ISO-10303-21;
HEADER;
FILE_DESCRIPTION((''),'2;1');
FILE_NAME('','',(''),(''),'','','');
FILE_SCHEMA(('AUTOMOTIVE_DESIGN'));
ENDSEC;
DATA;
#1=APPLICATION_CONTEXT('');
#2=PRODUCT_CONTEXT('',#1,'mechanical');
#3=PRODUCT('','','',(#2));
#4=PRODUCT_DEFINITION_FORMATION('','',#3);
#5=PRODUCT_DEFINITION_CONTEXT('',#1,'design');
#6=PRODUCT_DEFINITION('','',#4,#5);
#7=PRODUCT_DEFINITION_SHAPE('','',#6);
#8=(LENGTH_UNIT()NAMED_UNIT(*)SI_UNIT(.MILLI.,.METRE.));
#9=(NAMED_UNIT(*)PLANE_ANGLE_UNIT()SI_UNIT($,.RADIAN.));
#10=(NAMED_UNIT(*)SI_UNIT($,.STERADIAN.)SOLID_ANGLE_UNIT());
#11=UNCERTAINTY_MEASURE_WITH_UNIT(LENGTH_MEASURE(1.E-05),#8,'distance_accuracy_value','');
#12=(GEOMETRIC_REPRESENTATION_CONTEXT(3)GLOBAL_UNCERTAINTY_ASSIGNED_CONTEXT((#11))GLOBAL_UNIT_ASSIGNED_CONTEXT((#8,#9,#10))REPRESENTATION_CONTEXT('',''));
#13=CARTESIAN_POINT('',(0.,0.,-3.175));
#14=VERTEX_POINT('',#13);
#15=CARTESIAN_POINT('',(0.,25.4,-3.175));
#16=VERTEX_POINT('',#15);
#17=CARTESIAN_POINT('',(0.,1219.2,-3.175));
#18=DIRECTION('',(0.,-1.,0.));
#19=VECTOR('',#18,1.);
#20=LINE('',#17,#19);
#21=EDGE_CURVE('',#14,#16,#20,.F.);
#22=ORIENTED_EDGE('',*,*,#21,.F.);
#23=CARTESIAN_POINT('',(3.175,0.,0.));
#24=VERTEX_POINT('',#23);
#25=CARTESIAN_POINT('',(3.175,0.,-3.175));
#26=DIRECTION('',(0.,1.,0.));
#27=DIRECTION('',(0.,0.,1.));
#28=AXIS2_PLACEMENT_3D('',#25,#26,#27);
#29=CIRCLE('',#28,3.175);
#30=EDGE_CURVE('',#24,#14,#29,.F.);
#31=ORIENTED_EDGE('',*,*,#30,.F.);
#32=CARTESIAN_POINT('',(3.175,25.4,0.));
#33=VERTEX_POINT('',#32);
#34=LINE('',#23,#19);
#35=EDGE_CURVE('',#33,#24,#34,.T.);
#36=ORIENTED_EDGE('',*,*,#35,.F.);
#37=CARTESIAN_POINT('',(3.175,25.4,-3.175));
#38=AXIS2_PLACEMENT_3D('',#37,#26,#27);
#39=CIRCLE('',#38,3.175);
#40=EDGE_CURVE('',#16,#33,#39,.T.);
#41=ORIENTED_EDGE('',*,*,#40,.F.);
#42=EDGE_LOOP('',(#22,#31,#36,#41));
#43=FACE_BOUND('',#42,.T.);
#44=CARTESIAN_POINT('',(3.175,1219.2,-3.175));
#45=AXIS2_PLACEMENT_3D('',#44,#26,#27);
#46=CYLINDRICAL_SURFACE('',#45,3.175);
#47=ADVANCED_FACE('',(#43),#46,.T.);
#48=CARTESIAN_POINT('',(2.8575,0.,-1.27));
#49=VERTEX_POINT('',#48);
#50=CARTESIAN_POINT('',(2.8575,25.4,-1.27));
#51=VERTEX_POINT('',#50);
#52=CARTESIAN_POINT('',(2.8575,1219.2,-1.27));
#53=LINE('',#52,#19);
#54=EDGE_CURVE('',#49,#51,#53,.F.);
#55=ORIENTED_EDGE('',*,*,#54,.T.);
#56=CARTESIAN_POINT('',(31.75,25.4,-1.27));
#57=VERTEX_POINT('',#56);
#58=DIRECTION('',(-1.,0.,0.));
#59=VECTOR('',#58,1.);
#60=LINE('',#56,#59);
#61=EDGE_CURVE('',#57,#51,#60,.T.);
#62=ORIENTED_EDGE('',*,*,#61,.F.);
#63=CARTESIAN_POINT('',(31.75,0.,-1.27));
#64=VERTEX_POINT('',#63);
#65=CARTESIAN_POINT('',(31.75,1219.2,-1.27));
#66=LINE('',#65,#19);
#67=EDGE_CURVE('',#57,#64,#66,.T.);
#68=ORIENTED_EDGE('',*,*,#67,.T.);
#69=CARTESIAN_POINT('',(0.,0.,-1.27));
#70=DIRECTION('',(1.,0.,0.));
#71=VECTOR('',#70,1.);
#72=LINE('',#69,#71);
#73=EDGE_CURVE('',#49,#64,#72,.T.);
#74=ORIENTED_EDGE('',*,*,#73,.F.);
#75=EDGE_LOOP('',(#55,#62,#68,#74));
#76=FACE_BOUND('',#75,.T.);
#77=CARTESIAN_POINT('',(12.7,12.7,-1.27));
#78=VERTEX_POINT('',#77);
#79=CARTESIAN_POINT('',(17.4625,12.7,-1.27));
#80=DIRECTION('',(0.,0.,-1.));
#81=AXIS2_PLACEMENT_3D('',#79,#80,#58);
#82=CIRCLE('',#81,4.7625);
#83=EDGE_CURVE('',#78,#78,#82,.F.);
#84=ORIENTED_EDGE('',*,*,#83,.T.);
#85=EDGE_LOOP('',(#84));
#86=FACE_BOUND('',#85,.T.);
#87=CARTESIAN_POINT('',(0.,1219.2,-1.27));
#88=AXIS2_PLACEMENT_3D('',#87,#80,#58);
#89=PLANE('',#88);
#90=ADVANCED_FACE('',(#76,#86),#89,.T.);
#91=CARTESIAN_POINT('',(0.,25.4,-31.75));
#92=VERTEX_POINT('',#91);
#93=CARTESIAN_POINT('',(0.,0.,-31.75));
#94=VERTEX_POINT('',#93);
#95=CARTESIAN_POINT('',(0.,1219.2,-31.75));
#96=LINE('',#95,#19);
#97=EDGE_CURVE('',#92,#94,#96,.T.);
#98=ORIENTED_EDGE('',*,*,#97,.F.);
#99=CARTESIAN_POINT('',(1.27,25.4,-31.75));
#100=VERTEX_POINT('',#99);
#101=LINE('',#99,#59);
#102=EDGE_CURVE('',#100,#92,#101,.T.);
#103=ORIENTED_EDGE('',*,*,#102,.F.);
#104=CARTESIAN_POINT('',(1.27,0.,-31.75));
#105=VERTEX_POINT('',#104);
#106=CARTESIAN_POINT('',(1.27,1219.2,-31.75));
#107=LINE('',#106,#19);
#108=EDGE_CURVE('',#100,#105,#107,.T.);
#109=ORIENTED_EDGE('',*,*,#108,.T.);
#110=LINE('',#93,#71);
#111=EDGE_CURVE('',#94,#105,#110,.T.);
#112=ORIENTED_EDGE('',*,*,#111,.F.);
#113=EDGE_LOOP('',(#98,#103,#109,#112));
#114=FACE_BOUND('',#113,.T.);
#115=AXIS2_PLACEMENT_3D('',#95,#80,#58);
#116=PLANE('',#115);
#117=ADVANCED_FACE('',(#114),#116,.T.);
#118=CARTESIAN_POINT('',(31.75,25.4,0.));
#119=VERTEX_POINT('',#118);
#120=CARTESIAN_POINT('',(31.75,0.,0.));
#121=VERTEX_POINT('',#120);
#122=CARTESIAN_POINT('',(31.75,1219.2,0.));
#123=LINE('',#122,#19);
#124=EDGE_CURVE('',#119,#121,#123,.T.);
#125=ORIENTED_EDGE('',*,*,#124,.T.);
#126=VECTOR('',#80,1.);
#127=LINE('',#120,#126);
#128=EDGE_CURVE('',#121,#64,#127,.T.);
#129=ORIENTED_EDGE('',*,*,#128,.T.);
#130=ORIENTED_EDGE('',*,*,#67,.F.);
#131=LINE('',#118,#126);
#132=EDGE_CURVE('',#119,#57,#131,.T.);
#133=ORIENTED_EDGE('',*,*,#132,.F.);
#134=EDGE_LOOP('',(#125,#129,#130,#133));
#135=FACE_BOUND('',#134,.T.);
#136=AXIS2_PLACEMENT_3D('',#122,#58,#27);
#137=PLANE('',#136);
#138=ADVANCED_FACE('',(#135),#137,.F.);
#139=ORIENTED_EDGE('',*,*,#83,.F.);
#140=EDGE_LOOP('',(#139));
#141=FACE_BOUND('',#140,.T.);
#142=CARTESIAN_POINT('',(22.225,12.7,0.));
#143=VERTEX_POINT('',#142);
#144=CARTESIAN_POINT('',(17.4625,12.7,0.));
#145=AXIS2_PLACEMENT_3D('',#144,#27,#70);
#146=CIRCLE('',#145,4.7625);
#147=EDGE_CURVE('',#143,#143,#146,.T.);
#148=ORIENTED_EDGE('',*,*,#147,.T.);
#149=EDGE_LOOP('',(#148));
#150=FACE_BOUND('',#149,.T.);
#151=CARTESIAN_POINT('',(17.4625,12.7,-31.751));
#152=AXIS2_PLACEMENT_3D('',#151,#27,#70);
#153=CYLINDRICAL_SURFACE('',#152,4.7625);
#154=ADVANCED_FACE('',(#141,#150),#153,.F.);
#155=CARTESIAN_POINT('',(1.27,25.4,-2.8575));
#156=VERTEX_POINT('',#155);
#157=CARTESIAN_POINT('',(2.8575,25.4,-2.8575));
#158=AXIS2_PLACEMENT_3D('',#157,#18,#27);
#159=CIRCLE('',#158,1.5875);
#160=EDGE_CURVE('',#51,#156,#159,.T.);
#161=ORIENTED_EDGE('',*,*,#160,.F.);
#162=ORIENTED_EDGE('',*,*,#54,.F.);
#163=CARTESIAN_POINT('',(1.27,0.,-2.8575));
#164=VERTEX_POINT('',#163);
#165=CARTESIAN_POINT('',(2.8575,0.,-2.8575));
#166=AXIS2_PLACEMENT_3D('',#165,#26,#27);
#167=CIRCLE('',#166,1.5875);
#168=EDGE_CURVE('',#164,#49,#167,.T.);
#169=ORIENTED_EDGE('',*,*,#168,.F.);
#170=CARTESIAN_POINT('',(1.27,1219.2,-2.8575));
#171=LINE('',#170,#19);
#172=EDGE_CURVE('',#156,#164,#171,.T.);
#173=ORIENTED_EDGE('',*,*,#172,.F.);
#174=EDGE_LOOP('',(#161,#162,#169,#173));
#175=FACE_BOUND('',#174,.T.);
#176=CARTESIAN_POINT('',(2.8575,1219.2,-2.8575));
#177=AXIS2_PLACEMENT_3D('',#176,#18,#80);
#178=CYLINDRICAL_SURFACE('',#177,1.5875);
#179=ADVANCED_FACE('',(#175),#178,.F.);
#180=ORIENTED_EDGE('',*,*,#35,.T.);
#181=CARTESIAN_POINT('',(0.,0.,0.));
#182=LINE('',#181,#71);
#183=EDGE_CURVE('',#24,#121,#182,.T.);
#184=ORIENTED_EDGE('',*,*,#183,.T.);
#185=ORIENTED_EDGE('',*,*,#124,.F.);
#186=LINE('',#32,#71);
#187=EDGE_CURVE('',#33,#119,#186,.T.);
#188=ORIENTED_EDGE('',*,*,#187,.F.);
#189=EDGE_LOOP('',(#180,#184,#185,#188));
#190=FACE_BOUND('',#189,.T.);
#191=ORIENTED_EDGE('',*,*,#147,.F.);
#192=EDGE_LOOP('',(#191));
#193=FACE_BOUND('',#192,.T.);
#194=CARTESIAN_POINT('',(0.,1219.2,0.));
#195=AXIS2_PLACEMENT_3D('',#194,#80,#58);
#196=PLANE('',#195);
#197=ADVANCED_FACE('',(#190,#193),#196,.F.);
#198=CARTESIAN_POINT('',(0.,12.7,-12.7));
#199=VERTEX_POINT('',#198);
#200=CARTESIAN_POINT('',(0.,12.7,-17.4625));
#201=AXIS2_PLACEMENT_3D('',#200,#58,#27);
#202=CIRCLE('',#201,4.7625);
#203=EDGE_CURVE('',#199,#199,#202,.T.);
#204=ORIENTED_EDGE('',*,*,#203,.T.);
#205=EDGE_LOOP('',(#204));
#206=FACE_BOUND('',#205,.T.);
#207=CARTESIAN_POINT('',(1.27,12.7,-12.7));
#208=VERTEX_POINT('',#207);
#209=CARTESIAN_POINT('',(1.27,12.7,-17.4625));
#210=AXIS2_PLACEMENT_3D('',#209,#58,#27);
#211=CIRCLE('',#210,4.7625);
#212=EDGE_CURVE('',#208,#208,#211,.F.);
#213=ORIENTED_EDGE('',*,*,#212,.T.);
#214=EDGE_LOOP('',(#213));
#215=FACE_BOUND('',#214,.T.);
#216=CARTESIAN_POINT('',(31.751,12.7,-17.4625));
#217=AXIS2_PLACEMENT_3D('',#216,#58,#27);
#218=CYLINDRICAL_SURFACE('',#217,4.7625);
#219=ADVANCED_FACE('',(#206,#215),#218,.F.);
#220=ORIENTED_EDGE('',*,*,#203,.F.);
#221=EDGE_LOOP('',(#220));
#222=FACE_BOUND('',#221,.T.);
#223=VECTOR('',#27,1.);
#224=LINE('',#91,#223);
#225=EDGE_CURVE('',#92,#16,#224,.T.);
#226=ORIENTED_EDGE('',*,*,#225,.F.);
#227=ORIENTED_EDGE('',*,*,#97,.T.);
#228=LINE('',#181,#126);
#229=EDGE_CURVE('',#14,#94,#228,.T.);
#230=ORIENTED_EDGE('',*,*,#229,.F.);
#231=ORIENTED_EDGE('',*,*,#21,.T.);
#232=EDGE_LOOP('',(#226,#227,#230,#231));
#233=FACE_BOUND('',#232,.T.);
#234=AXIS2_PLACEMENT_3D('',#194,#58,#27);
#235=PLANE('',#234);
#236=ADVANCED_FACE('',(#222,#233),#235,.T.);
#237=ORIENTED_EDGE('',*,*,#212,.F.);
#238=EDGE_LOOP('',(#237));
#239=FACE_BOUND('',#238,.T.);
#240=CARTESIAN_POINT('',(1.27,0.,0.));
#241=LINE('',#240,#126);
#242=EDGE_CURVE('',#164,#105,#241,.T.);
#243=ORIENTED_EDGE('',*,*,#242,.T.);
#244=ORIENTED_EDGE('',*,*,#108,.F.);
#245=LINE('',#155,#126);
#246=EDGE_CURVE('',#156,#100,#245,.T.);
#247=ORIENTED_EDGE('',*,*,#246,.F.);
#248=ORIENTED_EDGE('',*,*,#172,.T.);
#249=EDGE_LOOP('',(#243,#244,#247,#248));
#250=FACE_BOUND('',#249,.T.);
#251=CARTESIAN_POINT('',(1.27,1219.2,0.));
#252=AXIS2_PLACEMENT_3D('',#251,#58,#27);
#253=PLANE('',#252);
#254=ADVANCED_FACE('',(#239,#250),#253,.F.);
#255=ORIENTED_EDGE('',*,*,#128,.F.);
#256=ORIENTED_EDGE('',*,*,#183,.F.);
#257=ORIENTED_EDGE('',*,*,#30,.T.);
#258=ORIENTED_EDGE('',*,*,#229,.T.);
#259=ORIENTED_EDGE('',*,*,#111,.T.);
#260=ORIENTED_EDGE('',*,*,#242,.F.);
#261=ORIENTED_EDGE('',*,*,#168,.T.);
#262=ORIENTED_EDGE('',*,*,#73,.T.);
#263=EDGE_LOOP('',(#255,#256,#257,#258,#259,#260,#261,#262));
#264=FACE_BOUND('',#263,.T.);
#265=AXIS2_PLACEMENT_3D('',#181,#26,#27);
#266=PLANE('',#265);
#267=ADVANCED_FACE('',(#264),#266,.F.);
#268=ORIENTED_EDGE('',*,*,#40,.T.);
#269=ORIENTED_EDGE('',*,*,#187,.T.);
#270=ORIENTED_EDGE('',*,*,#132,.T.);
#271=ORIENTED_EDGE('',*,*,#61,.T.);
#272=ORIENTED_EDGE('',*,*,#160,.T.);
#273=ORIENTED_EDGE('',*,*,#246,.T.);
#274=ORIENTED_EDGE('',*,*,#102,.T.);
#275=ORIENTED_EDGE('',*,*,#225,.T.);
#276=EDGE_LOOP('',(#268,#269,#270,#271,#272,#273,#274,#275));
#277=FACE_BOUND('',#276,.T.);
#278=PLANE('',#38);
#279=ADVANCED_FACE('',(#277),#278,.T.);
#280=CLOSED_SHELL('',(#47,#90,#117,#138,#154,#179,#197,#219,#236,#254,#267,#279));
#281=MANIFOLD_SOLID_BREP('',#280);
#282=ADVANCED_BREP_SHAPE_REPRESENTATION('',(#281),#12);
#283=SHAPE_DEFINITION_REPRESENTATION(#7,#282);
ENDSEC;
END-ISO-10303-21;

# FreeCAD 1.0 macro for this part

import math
import FreeCAD as App
import Part
import Sketcher
Q = App.Units.Quantity


def edges_at(feature, points):
    """Names of the edges that pass closest to the given points."""
    edges = feature.Shape.Edges
    near = lambda p: min(range(len(edges)), key=lambda i: edges[i].distToShape(Part.Vertex(*p))[0])
    return sorted({f"Edge{near(p) + 1}" for p in points})

doc = App.newDocument("Part")
body = doc.addObject("PartDesign::Body", "Body")

sketch1 = doc.addObject("Sketcher::SketchObject", "Sketch")
body.addObject(sketch1)
sketch1.AttachmentSupport = (doc.XZ_Plane, [""])
sketch1.MapMode = "FlatFace"
sketch1.addGeometry(Part.LineSegment(App.Vector(1.3, -1.3, 0), App.Vector(1.3, -31.8, 0)), False)
sketch1.addGeometry(Part.LineSegment(App.Vector(1.3, -31.8, 0), App.Vector(0, -31.8, 0)), False)
sketch1.addGeometry(Part.LineSegment(App.Vector(0, -31.8, 0), App.Vector(0, 0, 0)), False)
sketch1.addGeometry(Part.LineSegment(App.Vector(0, 0, 0), App.Vector(31.8, 0, 0)), False)
sketch1.addGeometry(Part.LineSegment(App.Vector(31.8, 0, 0), App.Vector(31.8, -1.3, 0)), False)
sketch1.addGeometry(Part.LineSegment(App.Vector(31.8, -1.3, 0), App.Vector(1.3, -1.3, 0)), False)
sketch1.addConstraint(Sketcher.Constraint("Coincident", 0, 2, 1, 1))
sketch1.addConstraint(Sketcher.Constraint("Coincident", 1, 2, 2, 1))
sketch1.addConstraint(Sketcher.Constraint("Coincident", 2, 2, 3, 1))
sketch1.addConstraint(Sketcher.Constraint("Coincident", 3, 2, 4, 1))
sketch1.addConstraint(Sketcher.Constraint("Coincident", 4, 2, 5, 1))
sketch1.addConstraint(Sketcher.Constraint("Coincident", 5, 2, 0, 1))
sketch1.addConstraint(Sketcher.Constraint("Vertical", 0))
sketch1.addConstraint(Sketcher.Constraint("Horizontal", 1))
sketch1.addConstraint(Sketcher.Constraint("Vertical", 2))
sketch1.addConstraint(Sketcher.Constraint("Horizontal", 3))
sketch1.addConstraint(Sketcher.Constraint("Vertical", 4))
sketch1.addConstraint(Sketcher.Constraint("Horizontal", 5))
sketch1.addConstraint(Sketcher.Constraint("Coincident", 2, 2, -1, 1))
sketch1.addConstraint(Sketcher.Constraint("Equal", 5, 0))
sketch1.addConstraint(Sketcher.Constraint("Equal", 3, 2))
sketch1.addConstraint(Sketcher.Constraint("DistanceX", 5, 2, 5, 1, Q("1.2 in")))
sketch1.addConstraint(Sketcher.Constraint("DistanceX", 1, 2, 1, 1, Q("0.05 in")))
pad1 = doc.addObject("PartDesign::Pad", "Pad")
body.addObject(pad1)
pad1.Profile = sketch1
pad1.Length = Q("48 in")
pad1.Reversed = True

sketch2 = doc.addObject("Sketcher::SketchObject", "Sketch001")
body.addObject(sketch2)
sketch2.AttachmentSupport = (doc.YZ_Plane, [""])
sketch2.MapMode = "FlatFace"
sketch2.addGeometry(Part.Circle(App.Vector(12.7, -17.5, 0), App.Vector(0, 0, 1), 4.8), False)
sketch2.addGeometry(Part.Circle(App.Vector(38.1, -17.5, 0), App.Vector(0, 0, 1), 4.8), False)
sketch2.addGeometry(Part.Circle(App.Vector(63.5, -17.5, 0), App.Vector(0, 0, 1), 4.8), False)
sketch2.addGeometry(Part.Circle(App.Vector(88.9, -17.5, 0), App.Vector(0, 0, 1), 4.8), False)
sketch2.addGeometry(Part.Circle(App.Vector(114.3, -17.5, 0), App.Vector(0, 0, 1), 4.8), False)
sketch2.addGeometry(Part.Circle(App.Vector(139.7, -17.5, 0), App.Vector(0, 0, 1), 4.8), False)
sketch2.addGeometry(Part.Circle(App.Vector(165.1, -17.5, 0), App.Vector(0, 0, 1), 4.8), False)
sketch2.addGeometry(Part.Circle(App.Vector(190.5, -17.5, 0), App.Vector(0, 0, 1), 4.8), False)
sketch2.addGeometry(Part.Circle(App.Vector(215.9, -17.5, 0), App.Vector(0, 0, 1), 4.8), False)
sketch2.addGeometry(Part.Circle(App.Vector(241.3, -17.5, 0), App.Vector(0, 0, 1), 4.8), False)
sketch2.addGeometry(Part.Circle(App.Vector(266.7, -17.5, 0), App.Vector(0, 0, 1), 4.8), False)
sketch2.addGeometry(Part.Circle(App.Vector(292.1, -17.5, 0), App.Vector(0, 0, 1), 4.8), False)
sketch2.addGeometry(Part.Circle(App.Vector(317.5, -17.5, 0), App.Vector(0, 0, 1), 4.8), False)
sketch2.addGeometry(Part.Circle(App.Vector(342.9, -17.5, 0), App.Vector(0, 0, 1), 4.8), False)
sketch2.addGeometry(Part.Circle(App.Vector(368.3, -17.5, 0), App.Vector(0, 0, 1), 4.8), False)
sketch2.addGeometry(Part.Circle(App.Vector(393.7, -17.5, 0), App.Vector(0, 0, 1), 4.8), False)
sketch2.addGeometry(Part.Circle(App.Vector(419.1, -17.5, 0), App.Vector(0, 0, 1), 4.8), False)
sketch2.addGeometry(Part.Circle(App.Vector(444.5, -17.5, 0), App.Vector(0, 0, 1), 4.8), False)
sketch2.addGeometry(Part.Circle(App.Vector(469.9, -17.5, 0), App.Vector(0, 0, 1), 4.8), False)
sketch2.addGeometry(Part.Circle(App.Vector(495.3, -17.5, 0), App.Vector(0, 0, 1), 4.8), False)
sketch2.addGeometry(Part.Circle(App.Vector(520.7, -17.5, 0), App.Vector(0, 0, 1), 4.8), False)
sketch2.addGeometry(Part.Circle(App.Vector(546.1, -17.5, 0), App.Vector(0, 0, 1), 4.8), False)
sketch2.addGeometry(Part.Circle(App.Vector(571.5, -17.5, 0), App.Vector(0, 0, 1), 4.8), False)
sketch2.addGeometry(Part.Circle(App.Vector(596.9, -17.5, 0), App.Vector(0, 0, 1), 4.8), False)
sketch2.addGeometry(Part.Circle(App.Vector(622.3, -17.5, 0), App.Vector(0, 0, 1), 4.8), False)
sketch2.addGeometry(Part.Circle(App.Vector(647.7, -17.5, 0), App.Vector(0, 0, 1), 4.8), False)
sketch2.addGeometry(Part.Circle(App.Vector(673.1, -17.5, 0), App.Vector(0, 0, 1), 4.8), False)
sketch2.addGeometry(Part.Circle(App.Vector(698.5, -17.5, 0), App.Vector(0, 0, 1), 4.8), False)
sketch2.addGeometry(Part.Circle(App.Vector(723.9, -17.5, 0), App.Vector(0, 0, 1), 4.8), False)
sketch2.addGeometry(Part.Circle(App.Vector(749.3, -17.5, 0), App.Vector(0, 0, 1), 4.8), False)
sketch2.addGeometry(Part.Circle(App.Vector(774.7, -17.5, 0), App.Vector(0, 0, 1), 4.8), False)
sketch2.addGeometry(Part.Circle(App.Vector(800.1, -17.5, 0), App.Vector(0, 0, 1), 4.8), False)
sketch2.addGeometry(Part.Circle(App.Vector(825.5, -17.5, 0), App.Vector(0, 0, 1), 4.8), False)
sketch2.addGeometry(Part.Circle(App.Vector(850.9, -17.5, 0), App.Vector(0, 0, 1), 4.8), False)
sketch2.addGeometry(Part.Circle(App.Vector(876.3, -17.5, 0), App.Vector(0, 0, 1), 4.8), False)
sketch2.addGeometry(Part.Circle(App.Vector(901.7, -17.5, 0), App.Vector(0, 0, 1), 4.8), False)
sketch2.addGeometry(Part.Circle(App.Vector(927.1, -17.5, 0), App.Vector(0, 0, 1), 4.8), False)
sketch2.addGeometry(Part.Circle(App.Vector(952.5, -17.5, 0), App.Vector(0, 0, 1), 4.8), False)
sketch2.addGeometry(Part.Circle(App.Vector(977.9, -17.5, 0), App.Vector(0, 0, 1), 4.8), False)
sketch2.addGeometry(Part.Circle(App.Vector(1003.3, -17.5, 0), App.Vector(0, 0, 1), 4.8), False)
sketch2.addGeometry(Part.Circle(App.Vector(1028.7, -17.5, 0), App.Vector(0, 0, 1), 4.8), False)
sketch2.addGeometry(Part.Circle(App.Vector(1054.1, -17.5, 0), App.Vector(0, 0, 1), 4.8), False)
sketch2.addGeometry(Part.Circle(App.Vector(1079.5, -17.5, 0), App.Vector(0, 0, 1), 4.8), False)
sketch2.addGeometry(Part.Circle(App.Vector(1104.9, -17.5, 0), App.Vector(0, 0, 1), 4.8), False)
sketch2.addGeometry(Part.Circle(App.Vector(1130.3, -17.5, 0), App.Vector(0, 0, 1), 4.8), False)
sketch2.addGeometry(Part.Circle(App.Vector(1155.7, -17.5, 0), App.Vector(0, 0, 1), 4.8), False)
sketch2.addGeometry(Part.Circle(App.Vector(1181.1, -17.5, 0), App.Vector(0, 0, 1), 4.8), False)
sketch2.addGeometry(Part.Circle(App.Vector(1206.5, -17.5, 0), App.Vector(0, 0, 1), 4.8), False)
sketch2.addConstraint(Sketcher.Constraint("Equal", 0, 1))
sketch2.addConstraint(Sketcher.Constraint("Equal", 1, 2))
sketch2.addConstraint(Sketcher.Constraint("Equal", 2, 3))
sketch2.addConstraint(Sketcher.Constraint("Equal", 3, 4))
sketch2.addConstraint(Sketcher.Constraint("Equal", 4, 5))
sketch2.addConstraint(Sketcher.Constraint("Equal", 5, 6))
sketch2.addConstraint(Sketcher.Constraint("Equal", 6, 7))
sketch2.addConstraint(Sketcher.Constraint("Equal", 7, 8))
sketch2.addConstraint(Sketcher.Constraint("Equal", 8, 9))
sketch2.addConstraint(Sketcher.Constraint("Equal", 9, 10))
sketch2.addConstraint(Sketcher.Constraint("Equal", 10, 11))
sketch2.addConstraint(Sketcher.Constraint("Equal", 11, 12))
sketch2.addConstraint(Sketcher.Constraint("Equal", 12, 13))
sketch2.addConstraint(Sketcher.Constraint("Equal", 13, 14))
sketch2.addConstraint(Sketcher.Constraint("Equal", 14, 15))
sketch2.addConstraint(Sketcher.Constraint("Equal", 15, 16))
sketch2.addConstraint(Sketcher.Constraint("Equal", 16, 17))
sketch2.addConstraint(Sketcher.Constraint("Equal", 17, 18))
sketch2.addConstraint(Sketcher.Constraint("Equal", 18, 19))
sketch2.addConstraint(Sketcher.Constraint("Equal", 19, 20))
sketch2.addConstraint(Sketcher.Constraint("Equal", 20, 21))
sketch2.addConstraint(Sketcher.Constraint("Equal", 21, 22))
sketch2.addConstraint(Sketcher.Constraint("Equal", 22, 23))
sketch2.addConstraint(Sketcher.Constraint("Equal", 23, 24))
sketch2.addConstraint(Sketcher.Constraint("Equal", 24, 25))
sketch2.addConstraint(Sketcher.Constraint("Equal", 25, 26))
sketch2.addConstraint(Sketcher.Constraint("Equal", 26, 27))
sketch2.addConstraint(Sketcher.Constraint("Equal", 27, 28))
sketch2.addConstraint(Sketcher.Constraint("Equal", 28, 29))
sketch2.addConstraint(Sketcher.Constraint("Equal", 29, 30))
sketch2.addConstraint(Sketcher.Constraint("Equal", 30, 31))
sketch2.addConstraint(Sketcher.Constraint("Equal", 31, 32))
sketch2.addConstraint(Sketcher.Constraint("Equal", 32, 33))
sketch2.addConstraint(Sketcher.Constraint("Equal", 33, 34))
sketch2.addConstraint(Sketcher.Constraint("Equal", 34, 35))
sketch2.addConstraint(Sketcher.Constraint("Equal", 35, 36))
sketch2.addConstraint(Sketcher.Constraint("Equal", 36, 37))
sketch2.addConstraint(Sketcher.Constraint("Equal", 37, 38))
sketch2.addConstraint(Sketcher.Constraint("Equal", 38, 39))
sketch2.addConstraint(Sketcher.Constraint("Equal", 39, 40))
sketch2.addConstraint(Sketcher.Constraint("Equal", 40, 41))
sketch2.addConstraint(Sketcher.Constraint("Equal", 41, 42))
sketch2.addConstraint(Sketcher.Constraint("Equal", 42, 43))
sketch2.addConstraint(Sketcher.Constraint("Equal", 43, 44))
sketch2.addConstraint(Sketcher.Constraint("Equal", 44, 45))
sketch2.addConstraint(Sketcher.Constraint("Equal", 45, 46))
sketch2.addConstraint(Sketcher.Constraint("Equal", 46, 47))
sketch2.addConstraint(Sketcher.Constraint("Horizontal", 0, 3, 1, 3))
sketch2.addConstraint(Sketcher.Constraint("Horizontal", 1, 3, 2, 3))
sketch2.addConstraint(Sketcher.Constraint("Horizontal", 2, 3, 3, 3))
sketch2.addConstraint(Sketcher.Constraint("Horizontal", 3, 3, 4, 3))
sketch2.addConstraint(Sketcher.Constraint("Horizontal", 4, 3, 5, 3))
sketch2.addConstraint(Sketcher.Constraint("Horizontal", 5, 3, 6, 3))
sketch2.addConstraint(Sketcher.Constraint("Horizontal", 6, 3, 7, 3))
sketch2.addConstraint(Sketcher.Constraint("Horizontal", 7, 3, 8, 3))
sketch2.addConstraint(Sketcher.Constraint("Horizontal", 8, 3, 9, 3))
sketch2.addConstraint(Sketcher.Constraint("Horizontal", 9, 3, 10, 3))
sketch2.addConstraint(Sketcher.Constraint("Horizontal", 10, 3, 11, 3))
sketch2.addConstraint(Sketcher.Constraint("Horizontal", 11, 3, 12, 3))
sketch2.addConstraint(Sketcher.Constraint("Horizontal", 12, 3, 13, 3))
sketch2.addConstraint(Sketcher.Constraint("Horizontal", 13, 3, 14, 3))
sketch2.addConstraint(Sketcher.Constraint("Horizontal", 14, 3, 15, 3))
sketch2.addConstraint(Sketcher.Constraint("Horizontal", 15, 3, 16, 3))
sketch2.addConstraint(Sketcher.Constraint("Horizontal", 16, 3, 17, 3))
sketch2.addConstraint(Sketcher.Constraint("Horizontal", 17, 3, 18, 3))
sketch2.addConstraint(Sketcher.Constraint("Horizontal", 18, 3, 19, 3))
sketch2.addConstraint(Sketcher.Constraint("Horizontal", 19, 3, 20, 3))
sketch2.addConstraint(Sketcher.Constraint("Horizontal", 20, 3, 21, 3))
sketch2.addConstraint(Sketcher.Constraint("Horizontal", 21, 3, 22, 3))
sketch2.addConstraint(Sketcher.Constraint("Horizontal", 22, 3, 23, 3))
sketch2.addConstraint(Sketcher.Constraint("Horizontal", 23, 3, 24, 3))
sketch2.addConstraint(Sketcher.Constraint("Horizontal", 24, 3, 25, 3))
sketch2.addConstraint(Sketcher.Constraint("Horizontal", 25, 3, 26, 3))
sketch2.addConstraint(Sketcher.Constraint("Horizontal", 26, 3, 27, 3))
sketch2.addConstraint(Sketcher.Constraint("Horizontal", 27, 3, 28, 3))
sketch2.addConstraint(Sketcher.Constraint("Horizontal", 28, 3, 29, 3))
sketch2.addConstraint(Sketcher.Constraint("Horizontal", 29, 3, 30, 3))
sketch2.addConstraint(Sketcher.Constraint("Horizontal", 30, 3, 31, 3))
sketch2.addConstraint(Sketcher.Constraint("Horizontal", 31, 3, 32, 3))
sketch2.addConstraint(Sketcher.Constraint("Horizontal", 32, 3, 33, 3))
sketch2.addConstraint(Sketcher.Constraint("Horizontal", 33, 3, 34, 3))
sketch2.addConstraint(Sketcher.Constraint("Horizontal", 34, 3, 35, 3))
sketch2.addConstraint(Sketcher.Constraint("Horizontal", 35, 3, 36, 3))
sketch2.addConstraint(Sketcher.Constraint("Horizontal", 36, 3, 37, 3))
sketch2.addConstraint(Sketcher.Constraint("Horizontal", 37, 3, 38, 3))
sketch2.addConstraint(Sketcher.Constraint("Horizontal", 38, 3, 39, 3))
sketch2.addConstraint(Sketcher.Constraint("Horizontal", 39, 3, 40, 3))
sketch2.addConstraint(Sketcher.Constraint("Horizontal", 40, 3, 41, 3))
sketch2.addConstraint(Sketcher.Constraint("Horizontal", 41, 3, 42, 3))
sketch2.addConstraint(Sketcher.Constraint("Horizontal", 42, 3, 43, 3))
sketch2.addConstraint(Sketcher.Constraint("Horizontal", 43, 3, 44, 3))
sketch2.addConstraint(Sketcher.Constraint("Horizontal", 44, 3, 45, 3))
sketch2.addConstraint(Sketcher.Constraint("Horizontal", 45, 3, 46, 3))
sketch2.addConstraint(Sketcher.Constraint("Horizontal", 46, 3, 47, 3))
sketch2.addConstraint(Sketcher.Constraint("Diameter", 0, Q("0.375 in")))
sketch2.addConstraint(Sketcher.Constraint("DistanceX", 0, 3, 1, 3, Q("1 in")))
sketch2.addConstraint(Sketcher.Constraint("DistanceX", 1, 3, 2, 3, Q("1 in")))
sketch2.addConstraint(Sketcher.Constraint("DistanceX", 2, 3, 3, 3, Q("1 in")))
sketch2.addConstraint(Sketcher.Constraint("DistanceX", 3, 3, 4, 3, Q("1 in")))
sketch2.addConstraint(Sketcher.Constraint("DistanceX", 4, 3, 5, 3, Q("1 in")))
sketch2.addConstraint(Sketcher.Constraint("DistanceX", 5, 3, 6, 3, Q("1 in")))
sketch2.addConstraint(Sketcher.Constraint("DistanceX", 6, 3, 7, 3, Q("1 in")))
sketch2.addConstraint(Sketcher.Constraint("DistanceX", 7, 3, 8, 3, Q("1 in")))
sketch2.addConstraint(Sketcher.Constraint("DistanceX", 8, 3, 9, 3, Q("1 in")))
sketch2.addConstraint(Sketcher.Constraint("DistanceX", 9, 3, 10, 3, Q("1 in")))
sketch2.addConstraint(Sketcher.Constraint("DistanceX", 10, 3, 11, 3, Q("1 in")))
sketch2.addConstraint(Sketcher.Constraint("DistanceX", 11, 3, 12, 3, Q("1 in")))
sketch2.addConstraint(Sketcher.Constraint("DistanceX", 12, 3, 13, 3, Q("1 in")))
sketch2.addConstraint(Sketcher.Constraint("DistanceX", 13, 3, 14, 3, Q("1 in")))
sketch2.addConstraint(Sketcher.Constraint("DistanceX", 14, 3, 15, 3, Q("1 in")))
sketch2.addConstraint(Sketcher.Constraint("DistanceX", 15, 3, 16, 3, Q("1 in")))
sketch2.addConstraint(Sketcher.Constraint("DistanceX", 16, 3, 17, 3, Q("1 in")))
sketch2.addConstraint(Sketcher.Constraint("DistanceX", 17, 3, 18, 3, Q("1 in")))
sketch2.addConstraint(Sketcher.Constraint("DistanceX", 18, 3, 19, 3, Q("1 in")))
sketch2.addConstraint(Sketcher.Constraint("DistanceX", 19, 3, 20, 3, Q("1 in")))
sketch2.addConstraint(Sketcher.Constraint("DistanceX", 20, 3, 21, 3, Q("1 in")))
sketch2.addConstraint(Sketcher.Constraint("DistanceX", 21, 3, 22, 3, Q("1 in")))
sketch2.addConstraint(Sketcher.Constraint("DistanceX", 22, 3, 23, 3, Q("1 in")))
sketch2.addConstraint(Sketcher.Constraint("DistanceX", 23, 3, 24, 3, Q("1 in")))
sketch2.addConstraint(Sketcher.Constraint("DistanceX", 24, 3, 25, 3, Q("1 in")))
sketch2.addConstraint(Sketcher.Constraint("DistanceX", 25, 3, 26, 3, Q("1 in")))
sketch2.addConstraint(Sketcher.Constraint("DistanceX", 26, 3, 27, 3, Q("1 in")))
sketch2.addConstraint(Sketcher.Constraint("DistanceX", 27, 3, 28, 3, Q("1 in")))
sketch2.addConstraint(Sketcher.Constraint("DistanceX", 28, 3, 29, 3, Q("1 in")))
sketch2.addConstraint(Sketcher.Constraint("DistanceX", 29, 3, 30, 3, Q("1 in")))
sketch2.addConstraint(Sketcher.Constraint("DistanceX", 30, 3, 31, 3, Q("1 in")))
sketch2.addConstraint(Sketcher.Constraint("DistanceX", 31, 3, 32, 3, Q("1 in")))
sketch2.addConstraint(Sketcher.Constraint("DistanceX", 32, 3, 33, 3, Q("1 in")))
sketch2.addConstraint(Sketcher.Constraint("DistanceX", 33, 3, 34, 3, Q("1 in")))
sketch2.addConstraint(Sketcher.Constraint("DistanceX", 34, 3, 35, 3, Q("1 in")))
sketch2.addConstraint(Sketcher.Constraint("DistanceX", 35, 3, 36, 3, Q("1 in")))
sketch2.addConstraint(Sketcher.Constraint("DistanceX", 36, 3, 37, 3, Q("1 in")))
sketch2.addConstraint(Sketcher.Constraint("DistanceX", 37, 3, 38, 3, Q("1 in")))
sketch2.addConstraint(Sketcher.Constraint("DistanceX", 38, 3, 39, 3, Q("1 in")))
sketch2.addConstraint(Sketcher.Constraint("DistanceX", 39, 3, 40, 3, Q("1 in")))
sketch2.addConstraint(Sketcher.Constraint("DistanceX", 40, 3, 41, 3, Q("1 in")))
sketch2.addConstraint(Sketcher.Constraint("DistanceX", 41, 3, 42, 3, Q("1 in")))
sketch2.addConstraint(Sketcher.Constraint("DistanceX", 42, 3, 43, 3, Q("1 in")))
sketch2.addConstraint(Sketcher.Constraint("DistanceX", 43, 3, 44, 3, Q("1 in")))
sketch2.addConstraint(Sketcher.Constraint("DistanceX", 44, 3, 45, 3, Q("1 in")))
sketch2.addConstraint(Sketcher.Constraint("DistanceX", 45, 3, 46, 3, Q("1 in")))
sketch2.addConstraint(Sketcher.Constraint("DistanceX", 46, 3, 47, 3, Q("1 in")))
sketch2.addConstraint(Sketcher.Constraint("DistanceX", -1, 1, 0, 3, Q("0.5 in")))
sketch2.addConstraint(Sketcher.Constraint("DistanceY", 0, 3, -1, 1, Q("0.6875 in")))
pocket1 = doc.addObject("PartDesign::Pocket", "Pocket")
body.addObject(pocket1)
pocket1.Profile = sketch2
pocket1.Length = Q("0.05 in")
pocket1.Reversed = True

sketch3 = doc.addObject("Sketcher::SketchObject", "Sketch002")
body.addObject(sketch3)
sketch3.AttachmentSupport = (doc.XY_Plane, [""])
sketch3.MapMode = "FlatFace"
sketch3.addGeometry(Part.Circle(App.Vector(17.5, 1206.5, 0), App.Vector(0, 0, 1), 4.8), False)
sketch3.addGeometry(Part.Circle(App.Vector(17.5, 1181.1, 0), App.Vector(0, 0, 1), 4.8), False)
sketch3.addGeometry(Part.Circle(App.Vector(17.5, 1155.7, 0), App.Vector(0, 0, 1), 4.8), False)
sketch3.addGeometry(Part.Circle(App.Vector(17.5, 1130.3, 0), App.Vector(0, 0, 1), 4.8), False)
sketch3.addGeometry(Part.Circle(App.Vector(17.5, 1104.9, 0), App.Vector(0, 0, 1), 4.8), False)
sketch3.addGeometry(Part.Circle(App.Vector(17.5, 1079.5, 0), App.Vector(0, 0, 1), 4.8), False)
sketch3.addGeometry(Part.Circle(App.Vector(17.5, 1054.1, 0), App.Vector(0, 0, 1), 4.8), False)
sketch3.addGeometry(Part.Circle(App.Vector(17.5, 1028.7, 0), App.Vector(0, 0, 1), 4.8), False)
sketch3.addGeometry(Part.Circle(App.Vector(17.5, 1003.3, 0), App.Vector(0, 0, 1), 4.8), False)
sketch3.addGeometry(Part.Circle(App.Vector(17.5, 977.9, 0), App.Vector(0, 0, 1), 4.8), False)
sketch3.addGeometry(Part.Circle(App.Vector(17.5, 952.5, 0), App.Vector(0, 0, 1), 4.8), False)
sketch3.addGeometry(Part.Circle(App.Vector(17.5, 927.1, 0), App.Vector(0, 0, 1), 4.8), False)
sketch3.addGeometry(Part.Circle(App.Vector(17.5, 901.7, 0), App.Vector(0, 0, 1), 4.8), False)
sketch3.addGeometry(Part.Circle(App.Vector(17.5, 876.3, 0), App.Vector(0, 0, 1), 4.8), False)
sketch3.addGeometry(Part.Circle(App.Vector(17.5, 850.9, 0), App.Vector(0, 0, 1), 4.8), False)
sketch3.addGeometry(Part.Circle(App.Vector(17.5, 825.5, 0), App.Vector(0, 0, 1), 4.8), False)
sketch3.addGeometry(Part.Circle(App.Vector(17.5, 800.1, 0), App.Vector(0, 0, 1), 4.8), False)
sketch3.addGeometry(Part.Circle(App.Vector(17.5, 774.7, 0), App.Vector(0, 0, 1), 4.8), False)
sketch3.addGeometry(Part.Circle(App.Vector(17.5, 749.3, 0), App.Vector(0, 0, 1), 4.8), False)
sketch3.addGeometry(Part.Circle(App.Vector(17.5, 723.9, 0), App.Vector(0, 0, 1), 4.8), False)
sketch3.addGeometry(Part.Circle(App.Vector(17.5, 698.5, 0), App.Vector(0, 0, 1), 4.8), False)
sketch3.addGeometry(Part.Circle(App.Vector(17.5, 673.1, 0), App.Vector(0, 0, 1), 4.8), False)
sketch3.addGeometry(Part.Circle(App.Vector(17.5, 647.7, 0), App.Vector(0, 0, 1), 4.8), False)
sketch3.addGeometry(Part.Circle(App.Vector(17.5, 622.3, 0), App.Vector(0, 0, 1), 4.8), False)
sketch3.addGeometry(Part.Circle(App.Vector(17.5, 596.9, 0), App.Vector(0, 0, 1), 4.8), False)
sketch3.addGeometry(Part.Circle(App.Vector(17.5, 571.5, 0), App.Vector(0, 0, 1), 4.8), False)
sketch3.addGeometry(Part.Circle(App.Vector(17.5, 546.1, 0), App.Vector(0, 0, 1), 4.8), False)
sketch3.addGeometry(Part.Circle(App.Vector(17.5, 520.7, 0), App.Vector(0, 0, 1), 4.8), False)
sketch3.addGeometry(Part.Circle(App.Vector(17.5, 495.3, 0), App.Vector(0, 0, 1), 4.8), False)
sketch3.addGeometry(Part.Circle(App.Vector(17.5, 469.9, 0), App.Vector(0, 0, 1), 4.8), False)
sketch3.addGeometry(Part.Circle(App.Vector(17.5, 444.5, 0), App.Vector(0, 0, 1), 4.8), False)
sketch3.addGeometry(Part.Circle(App.Vector(17.5, 419.1, 0), App.Vector(0, 0, 1), 4.8), False)
sketch3.addGeometry(Part.Circle(App.Vector(17.5, 393.7, 0), App.Vector(0, 0, 1), 4.8), False)
sketch3.addGeometry(Part.Circle(App.Vector(17.5, 368.3, 0), App.Vector(0, 0, 1), 4.8), False)
sketch3.addGeometry(Part.Circle(App.Vector(17.5, 342.9, 0), App.Vector(0, 0, 1), 4.8), False)
sketch3.addGeometry(Part.Circle(App.Vector(17.5, 317.5, 0), App.Vector(0, 0, 1), 4.8), False)
sketch3.addGeometry(Part.Circle(App.Vector(17.5, 292.1, 0), App.Vector(0, 0, 1), 4.8), False)
sketch3.addGeometry(Part.Circle(App.Vector(17.5, 266.7, 0), App.Vector(0, 0, 1), 4.8), False)
sketch3.addGeometry(Part.Circle(App.Vector(17.5, 241.3, 0), App.Vector(0, 0, 1), 4.8), False)
sketch3.addGeometry(Part.Circle(App.Vector(17.5, 215.9, 0), App.Vector(0, 0, 1), 4.8), False)
sketch3.addGeometry(Part.Circle(App.Vector(17.5, 190.5, 0), App.Vector(0, 0, 1), 4.8), False)
sketch3.addGeometry(Part.Circle(App.Vector(17.5, 165.1, 0), App.Vector(0, 0, 1), 4.8), False)
sketch3.addGeometry(Part.Circle(App.Vector(17.5, 139.7, 0), App.Vector(0, 0, 1), 4.8), False)
sketch3.addGeometry(Part.Circle(App.Vector(17.5, 114.3, 0), App.Vector(0, 0, 1), 4.8), False)
sketch3.addGeometry(Part.Circle(App.Vector(17.5, 88.9, 0), App.Vector(0, 0, 1), 4.8), False)
sketch3.addGeometry(Part.Circle(App.Vector(17.5, 63.5, 0), App.Vector(0, 0, 1), 4.8), False)
sketch3.addGeometry(Part.Circle(App.Vector(17.5, 38.1, 0), App.Vector(0, 0, 1), 4.8), False)
sketch3.addGeometry(Part.Circle(App.Vector(17.5, 12.7, 0), App.Vector(0, 0, 1), 4.8), False)
sketch3.addConstraint(Sketcher.Constraint("Equal", 0, 1))
sketch3.addConstraint(Sketcher.Constraint("Equal", 1, 2))
sketch3.addConstraint(Sketcher.Constraint("Equal", 2, 3))
sketch3.addConstraint(Sketcher.Constraint("Equal", 3, 4))
sketch3.addConstraint(Sketcher.Constraint("Equal", 4, 5))
sketch3.addConstraint(Sketcher.Constraint("Equal", 5, 6))
sketch3.addConstraint(Sketcher.Constraint("Equal", 6, 7))
sketch3.addConstraint(Sketcher.Constraint("Equal", 7, 8))
sketch3.addConstraint(Sketcher.Constraint("Equal", 8, 9))
sketch3.addConstraint(Sketcher.Constraint("Equal", 9, 10))
sketch3.addConstraint(Sketcher.Constraint("Equal", 10, 11))
sketch3.addConstraint(Sketcher.Constraint("Equal", 11, 12))
sketch3.addConstraint(Sketcher.Constraint("Equal", 12, 13))
sketch3.addConstraint(Sketcher.Constraint("Equal", 13, 14))
sketch3.addConstraint(Sketcher.Constraint("Equal", 14, 15))
sketch3.addConstraint(Sketcher.Constraint("Equal", 15, 16))
sketch3.addConstraint(Sketcher.Constraint("Equal", 16, 17))
sketch3.addConstraint(Sketcher.Constraint("Equal", 17, 18))
sketch3.addConstraint(Sketcher.Constraint("Equal", 18, 19))
sketch3.addConstraint(Sketcher.Constraint("Equal", 19, 20))
sketch3.addConstraint(Sketcher.Constraint("Equal", 20, 21))
sketch3.addConstraint(Sketcher.Constraint("Equal", 21, 22))
sketch3.addConstraint(Sketcher.Constraint("Equal", 22, 23))
sketch3.addConstraint(Sketcher.Constraint("Equal", 23, 24))
sketch3.addConstraint(Sketcher.Constraint("Equal", 24, 25))
sketch3.addConstraint(Sketcher.Constraint("Equal", 25, 26))
sketch3.addConstraint(Sketcher.Constraint("Equal", 26, 27))
sketch3.addConstraint(Sketcher.Constraint("Equal", 27, 28))
sketch3.addConstraint(Sketcher.Constraint("Equal", 28, 29))
sketch3.addConstraint(Sketcher.Constraint("Equal", 29, 30))
sketch3.addConstraint(Sketcher.Constraint("Equal", 30, 31))
sketch3.addConstraint(Sketcher.Constraint("Equal", 31, 32))
sketch3.addConstraint(Sketcher.Constraint("Equal", 32, 33))
sketch3.addConstraint(Sketcher.Constraint("Equal", 33, 34))
sketch3.addConstraint(Sketcher.Constraint("Equal", 34, 35))
sketch3.addConstraint(Sketcher.Constraint("Equal", 35, 36))
sketch3.addConstraint(Sketcher.Constraint("Equal", 36, 37))
sketch3.addConstraint(Sketcher.Constraint("Equal", 37, 38))
sketch3.addConstraint(Sketcher.Constraint("Equal", 38, 39))
sketch3.addConstraint(Sketcher.Constraint("Equal", 39, 40))
sketch3.addConstraint(Sketcher.Constraint("Equal", 40, 41))
sketch3.addConstraint(Sketcher.Constraint("Equal", 41, 42))
sketch3.addConstraint(Sketcher.Constraint("Equal", 42, 43))
sketch3.addConstraint(Sketcher.Constraint("Equal", 43, 44))
sketch3.addConstraint(Sketcher.Constraint("Equal", 44, 45))
sketch3.addConstraint(Sketcher.Constraint("Equal", 45, 46))
sketch3.addConstraint(Sketcher.Constraint("Equal", 46, 47))
sketch3.addConstraint(Sketcher.Constraint("Vertical", 0, 3, 1, 3))
sketch3.addConstraint(Sketcher.Constraint("Vertical", 1, 3, 2, 3))
sketch3.addConstraint(Sketcher.Constraint("Vertical", 2, 3, 3, 3))
sketch3.addConstraint(Sketcher.Constraint("Vertical", 3, 3, 4, 3))
sketch3.addConstraint(Sketcher.Constraint("Vertical", 4, 3, 5, 3))
sketch3.addConstraint(Sketcher.Constraint("Vertical", 5, 3, 6, 3))
sketch3.addConstraint(Sketcher.Constraint("Vertical", 6, 3, 7, 3))
sketch3.addConstraint(Sketcher.Constraint("Vertical", 7, 3, 8, 3))
sketch3.addConstraint(Sketcher.Constraint("Vertical", 8, 3, 9, 3))
sketch3.addConstraint(Sketcher.Constraint("Vertical", 9, 3, 10, 3))
sketch3.addConstraint(Sketcher.Constraint("Vertical", 10, 3, 11, 3))
sketch3.addConstraint(Sketcher.Constraint("Vertical", 11, 3, 12, 3))
sketch3.addConstraint(Sketcher.Constraint("Vertical", 12, 3, 13, 3))
sketch3.addConstraint(Sketcher.Constraint("Vertical", 13, 3, 14, 3))
sketch3.addConstraint(Sketcher.Constraint("Vertical", 14, 3, 15, 3))
sketch3.addConstraint(Sketcher.Constraint("Vertical", 15, 3, 16, 3))
sketch3.addConstraint(Sketcher.Constraint("Vertical", 16, 3, 17, 3))
sketch3.addConstraint(Sketcher.Constraint("Vertical", 17, 3, 18, 3))
sketch3.addConstraint(Sketcher.Constraint("Vertical", 18, 3, 19, 3))
sketch3.addConstraint(Sketcher.Constraint("Vertical", 19, 3, 20, 3))
sketch3.addConstraint(Sketcher.Constraint("Vertical", 20, 3, 21, 3))
sketch3.addConstraint(Sketcher.Constraint("Vertical", 21, 3, 22, 3))
sketch3.addConstraint(Sketcher.Constraint("Vertical", 22, 3, 23, 3))
sketch3.addConstraint(Sketcher.Constraint("Vertical", 23, 3, 24, 3))
sketch3.addConstraint(Sketcher.Constraint("Vertical", 24, 3, 25, 3))
sketch3.addConstraint(Sketcher.Constraint("Vertical", 25, 3, 26, 3))
sketch3.addConstraint(Sketcher.Constraint("Vertical", 26, 3, 27, 3))
sketch3.addConstraint(Sketcher.Constraint("Vertical", 27, 3, 28, 3))
sketch3.addConstraint(Sketcher.Constraint("Vertical", 28, 3, 29, 3))
sketch3.addConstraint(Sketcher.Constraint("Vertical", 29, 3, 30, 3))
sketch3.addConstraint(Sketcher.Constraint("Vertical", 30, 3, 31, 3))
sketch3.addConstraint(Sketcher.Constraint("Vertical", 31, 3, 32, 3))
sketch3.addConstraint(Sketcher.Constraint("Vertical", 32, 3, 33, 3))
sketch3.addConstraint(Sketcher.Constraint("Vertical", 33, 3, 34, 3))
sketch3.addConstraint(Sketcher.Constraint("Vertical", 34, 3, 35, 3))
sketch3.addConstraint(Sketcher.Constraint("Vertical", 35, 3, 36, 3))
sketch3.addConstraint(Sketcher.Constraint("Vertical", 36, 3, 37, 3))
sketch3.addConstraint(Sketcher.Constraint("Vertical", 37, 3, 38, 3))
sketch3.addConstraint(Sketcher.Constraint("Vertical", 38, 3, 39, 3))
sketch3.addConstraint(Sketcher.Constraint("Vertical", 39, 3, 40, 3))
sketch3.addConstraint(Sketcher.Constraint("Vertical", 40, 3, 41, 3))
sketch3.addConstraint(Sketcher.Constraint("Vertical", 41, 3, 42, 3))
sketch3.addConstraint(Sketcher.Constraint("Vertical", 42, 3, 43, 3))
sketch3.addConstraint(Sketcher.Constraint("Vertical", 43, 3, 44, 3))
sketch3.addConstraint(Sketcher.Constraint("Vertical", 44, 3, 45, 3))
sketch3.addConstraint(Sketcher.Constraint("Vertical", 45, 3, 46, 3))
sketch3.addConstraint(Sketcher.Constraint("Vertical", 46, 3, 47, 3))
sketch3.addConstraint(Sketcher.Constraint("Diameter", 0, Q("0.375 in")))
sketch3.addConstraint(Sketcher.Constraint("DistanceY", 1, 3, 0, 3, Q("1 in")))
sketch3.addConstraint(Sketcher.Constraint("DistanceY", 2, 3, 1, 3, Q("1 in")))
sketch3.addConstraint(Sketcher.Constraint("DistanceY", 3, 3, 2, 3, Q("1 in")))
sketch3.addConstraint(Sketcher.Constraint("DistanceY", 4, 3, 3, 3, Q("1 in")))
sketch3.addConstraint(Sketcher.Constraint("DistanceY", 5, 3, 4, 3, Q("1 in")))
sketch3.addConstraint(Sketcher.Constraint("DistanceY", 6, 3, 5, 3, Q("1 in")))
sketch3.addConstraint(Sketcher.Constraint("DistanceY", 7, 3, 6, 3, Q("1 in")))
sketch3.addConstraint(Sketcher.Constraint("DistanceY", 8, 3, 7, 3, Q("1 in")))
sketch3.addConstraint(Sketcher.Constraint("DistanceY", 9, 3, 8, 3, Q("1 in")))
sketch3.addConstraint(Sketcher.Constraint("DistanceY", 10, 3, 9, 3, Q("1 in")))
sketch3.addConstraint(Sketcher.Constraint("DistanceY", 11, 3, 10, 3, Q("1 in")))
sketch3.addConstraint(Sketcher.Constraint("DistanceY", 12, 3, 11, 3, Q("1 in")))
sketch3.addConstraint(Sketcher.Constraint("DistanceY", 13, 3, 12, 3, Q("1 in")))
sketch3.addConstraint(Sketcher.Constraint("DistanceY", 14, 3, 13, 3, Q("1 in")))
sketch3.addConstraint(Sketcher.Constraint("DistanceY", 15, 3, 14, 3, Q("1 in")))
sketch3.addConstraint(Sketcher.Constraint("DistanceY", 16, 3, 15, 3, Q("1 in")))
sketch3.addConstraint(Sketcher.Constraint("DistanceY", 17, 3, 16, 3, Q("1 in")))
sketch3.addConstraint(Sketcher.Constraint("DistanceY", 18, 3, 17, 3, Q("1 in")))
sketch3.addConstraint(Sketcher.Constraint("DistanceY", 19, 3, 18, 3, Q("1 in")))
sketch3.addConstraint(Sketcher.Constraint("DistanceY", 20, 3, 19, 3, Q("1 in")))
sketch3.addConstraint(Sketcher.Constraint("DistanceY", 21, 3, 20, 3, Q("1 in")))
sketch3.addConstraint(Sketcher.Constraint("DistanceY", 22, 3, 21, 3, Q("1 in")))
sketch3.addConstraint(Sketcher.Constraint("DistanceY", 23, 3, 22, 3, Q("1 in")))
sketch3.addConstraint(Sketcher.Constraint("DistanceY", 24, 3, 23, 3, Q("1 in")))
sketch3.addConstraint(Sketcher.Constraint("DistanceY", 25, 3, 24, 3, Q("1 in")))
sketch3.addConstraint(Sketcher.Constraint("DistanceY", 26, 3, 25, 3, Q("1 in")))
sketch3.addConstraint(Sketcher.Constraint("DistanceY", 27, 3, 26, 3, Q("1 in")))
sketch3.addConstraint(Sketcher.Constraint("DistanceY", 28, 3, 27, 3, Q("1 in")))
sketch3.addConstraint(Sketcher.Constraint("DistanceY", 29, 3, 28, 3, Q("1 in")))
sketch3.addConstraint(Sketcher.Constraint("DistanceY", 30, 3, 29, 3, Q("1 in")))
sketch3.addConstraint(Sketcher.Constraint("DistanceY", 31, 3, 30, 3, Q("1 in")))
sketch3.addConstraint(Sketcher.Constraint("DistanceY", 32, 3, 31, 3, Q("1 in")))
sketch3.addConstraint(Sketcher.Constraint("DistanceY", 33, 3, 32, 3, Q("1 in")))
sketch3.addConstraint(Sketcher.Constraint("DistanceY", 34, 3, 33, 3, Q("1 in")))
sketch3.addConstraint(Sketcher.Constraint("DistanceY", 35, 3, 34, 3, Q("1 in")))
sketch3.addConstraint(Sketcher.Constraint("DistanceY", 36, 3, 35, 3, Q("1 in")))
sketch3.addConstraint(Sketcher.Constraint("DistanceY", 37, 3, 36, 3, Q("1 in")))
sketch3.addConstraint(Sketcher.Constraint("DistanceY", 38, 3, 37, 3, Q("1 in")))
sketch3.addConstraint(Sketcher.Constraint("DistanceY", 39, 3, 38, 3, Q("1 in")))
sketch3.addConstraint(Sketcher.Constraint("DistanceY", 40, 3, 39, 3, Q("1 in")))
sketch3.addConstraint(Sketcher.Constraint("DistanceY", 41, 3, 40, 3, Q("1 in")))
sketch3.addConstraint(Sketcher.Constraint("DistanceY", 42, 3, 41, 3, Q("1 in")))
sketch3.addConstraint(Sketcher.Constraint("DistanceY", 43, 3, 42, 3, Q("1 in")))
sketch3.addConstraint(Sketcher.Constraint("DistanceY", 44, 3, 43, 3, Q("1 in")))
sketch3.addConstraint(Sketcher.Constraint("DistanceY", 45, 3, 44, 3, Q("1 in")))
sketch3.addConstraint(Sketcher.Constraint("DistanceY", 46, 3, 45, 3, Q("1 in")))
sketch3.addConstraint(Sketcher.Constraint("DistanceY", 47, 3, 46, 3, Q("1 in")))
sketch3.addConstraint(Sketcher.Constraint("DistanceY", -1, 1, 0, 3, Q("47.5 in")))
sketch3.addConstraint(Sketcher.Constraint("DistanceX", -1, 1, 0, 3, Q("0.6875 in")))
pocket2 = doc.addObject("PartDesign::Pocket", "Pocket001")
body.addObject(pocket2)
pocket2.Profile = sketch3
pocket2.Length = Q("0.05 in")
doc.recompute()

fillet = doc.addObject("PartDesign::Fillet", "Fillet")
body.addObject(fillet)
fillet.Base = (pocket2, edges_at(pocket2, [(0, 609.6, 0)]))
fillet.Radius = Q("0.125 in")
doc.recompute()

fillet2 = doc.addObject("PartDesign::Fillet", "Fillet001")
body.addObject(fillet2)
fillet2.Base = (fillet, edges_at(fillet, [(1.27, 609.6, -1.27)]))
fillet2.Radius = Q("0.0625 in")

sketch4 = doc.addObject("Sketcher::SketchObject", "Sketch003")
body.addObject(sketch4)
sketch4.AttachmentSupport = (doc.XZ_Plane, [""])
sketch4.MapMode = "FlatFace"
sketch4.AttachmentOffset = App.Placement(App.Vector(0, 0, -48 * 25.4), App.Rotation())
sketch4.addGeometry(Part.LineSegment(App.Vector(0, -31.8, 0), App.Vector(0, -3.2, 0)), False)
sketch4.addGeometry(Part.ArcOfCircle(Part.Circle(App.Vector(3.2, -3.2, 0), App.Vector(0, 0, 1), 3.2), math.radians(90), math.radians(180)), False)
sketch4.addGeometry(Part.LineSegment(App.Vector(3.2, 0, 0), App.Vector(31.8, 0, 0)), False)
sketch4.addGeometry(Part.LineSegment(App.Vector(31.8, 0, 0), App.Vector(31.8, -1.3, 0)), False)
sketch4.addGeometry(Part.LineSegment(App.Vector(31.8, -1.3, 0), App.Vector(2.9, -1.3, 0)), False)
sketch4.addGeometry(Part.ArcOfCircle(Part.Circle(App.Vector(2.9, -2.9, 0), App.Vector(0, 0, 1), 1.6), math.radians(90), math.radians(180)), False)
sketch4.addGeometry(Part.LineSegment(App.Vector(1.3, -2.9, 0), App.Vector(1.3, -31.8, 0)), False)
sketch4.addGeometry(Part.LineSegment(App.Vector(1.3, -31.8, 0), App.Vector(0, -31.8, 0)), False)
sketch4.addConstraint(Sketcher.Constraint("Tangent", 0, 2, 1, 2))
sketch4.addConstraint(Sketcher.Constraint("Tangent", 1, 1, 2, 1))
sketch4.addConstraint(Sketcher.Constraint("Coincident", 2, 2, 3, 1))
sketch4.addConstraint(Sketcher.Constraint("Coincident", 3, 2, 4, 1))
sketch4.addConstraint(Sketcher.Constraint("Tangent", 4, 2, 5, 1))
sketch4.addConstraint(Sketcher.Constraint("Tangent", 5, 2, 6, 1))
sketch4.addConstraint(Sketcher.Constraint("Coincident", 6, 2, 7, 1))
sketch4.addConstraint(Sketcher.Constraint("Coincident", 7, 2, 0, 1))
sketch4.addConstraint(Sketcher.Constraint("Vertical", 0))
sketch4.addConstraint(Sketcher.Constraint("Horizontal", 2))
sketch4.addConstraint(Sketcher.Constraint("Vertical", 3))
sketch4.addConstraint(Sketcher.Constraint("Horizontal", 4))
sketch4.addConstraint(Sketcher.Constraint("Vertical", 6))
sketch4.addConstraint(Sketcher.Constraint("Horizontal", 7))
sketch4.addConstraint(Sketcher.Constraint("PointOnObject", 0, 2, -2))
sketch4.addConstraint(Sketcher.Constraint("PointOnObject", 1, 1, -1))
sketch4.addConstraint(Sketcher.Constraint("Equal", 2, 0))
sketch4.addConstraint(Sketcher.Constraint("Equal", 7, 3))
sketch4.addConstraint(Sketcher.Constraint("Radius", 1, Q("0.125 in")))
sketch4.addConstraint(Sketcher.Constraint("Radius", 5, Q("0.0625 in")))
sketch4.addConstraint(Sketcher.Constraint("DistanceX", 7, 2, 7, 1, Q("0.05 in")))
sketch4.addConstraint(Sketcher.Constraint("DistanceY", 6, 2, 4, 2, Q("1.2 in")))
pocket3 = doc.addObject("PartDesign::Pocket", "Pocket002")
body.addObject(pocket3)
pocket3.Profile = sketch4
pocket3.Length = Q("47 in")
pocket3.Reversed = True

doc.recompute()
